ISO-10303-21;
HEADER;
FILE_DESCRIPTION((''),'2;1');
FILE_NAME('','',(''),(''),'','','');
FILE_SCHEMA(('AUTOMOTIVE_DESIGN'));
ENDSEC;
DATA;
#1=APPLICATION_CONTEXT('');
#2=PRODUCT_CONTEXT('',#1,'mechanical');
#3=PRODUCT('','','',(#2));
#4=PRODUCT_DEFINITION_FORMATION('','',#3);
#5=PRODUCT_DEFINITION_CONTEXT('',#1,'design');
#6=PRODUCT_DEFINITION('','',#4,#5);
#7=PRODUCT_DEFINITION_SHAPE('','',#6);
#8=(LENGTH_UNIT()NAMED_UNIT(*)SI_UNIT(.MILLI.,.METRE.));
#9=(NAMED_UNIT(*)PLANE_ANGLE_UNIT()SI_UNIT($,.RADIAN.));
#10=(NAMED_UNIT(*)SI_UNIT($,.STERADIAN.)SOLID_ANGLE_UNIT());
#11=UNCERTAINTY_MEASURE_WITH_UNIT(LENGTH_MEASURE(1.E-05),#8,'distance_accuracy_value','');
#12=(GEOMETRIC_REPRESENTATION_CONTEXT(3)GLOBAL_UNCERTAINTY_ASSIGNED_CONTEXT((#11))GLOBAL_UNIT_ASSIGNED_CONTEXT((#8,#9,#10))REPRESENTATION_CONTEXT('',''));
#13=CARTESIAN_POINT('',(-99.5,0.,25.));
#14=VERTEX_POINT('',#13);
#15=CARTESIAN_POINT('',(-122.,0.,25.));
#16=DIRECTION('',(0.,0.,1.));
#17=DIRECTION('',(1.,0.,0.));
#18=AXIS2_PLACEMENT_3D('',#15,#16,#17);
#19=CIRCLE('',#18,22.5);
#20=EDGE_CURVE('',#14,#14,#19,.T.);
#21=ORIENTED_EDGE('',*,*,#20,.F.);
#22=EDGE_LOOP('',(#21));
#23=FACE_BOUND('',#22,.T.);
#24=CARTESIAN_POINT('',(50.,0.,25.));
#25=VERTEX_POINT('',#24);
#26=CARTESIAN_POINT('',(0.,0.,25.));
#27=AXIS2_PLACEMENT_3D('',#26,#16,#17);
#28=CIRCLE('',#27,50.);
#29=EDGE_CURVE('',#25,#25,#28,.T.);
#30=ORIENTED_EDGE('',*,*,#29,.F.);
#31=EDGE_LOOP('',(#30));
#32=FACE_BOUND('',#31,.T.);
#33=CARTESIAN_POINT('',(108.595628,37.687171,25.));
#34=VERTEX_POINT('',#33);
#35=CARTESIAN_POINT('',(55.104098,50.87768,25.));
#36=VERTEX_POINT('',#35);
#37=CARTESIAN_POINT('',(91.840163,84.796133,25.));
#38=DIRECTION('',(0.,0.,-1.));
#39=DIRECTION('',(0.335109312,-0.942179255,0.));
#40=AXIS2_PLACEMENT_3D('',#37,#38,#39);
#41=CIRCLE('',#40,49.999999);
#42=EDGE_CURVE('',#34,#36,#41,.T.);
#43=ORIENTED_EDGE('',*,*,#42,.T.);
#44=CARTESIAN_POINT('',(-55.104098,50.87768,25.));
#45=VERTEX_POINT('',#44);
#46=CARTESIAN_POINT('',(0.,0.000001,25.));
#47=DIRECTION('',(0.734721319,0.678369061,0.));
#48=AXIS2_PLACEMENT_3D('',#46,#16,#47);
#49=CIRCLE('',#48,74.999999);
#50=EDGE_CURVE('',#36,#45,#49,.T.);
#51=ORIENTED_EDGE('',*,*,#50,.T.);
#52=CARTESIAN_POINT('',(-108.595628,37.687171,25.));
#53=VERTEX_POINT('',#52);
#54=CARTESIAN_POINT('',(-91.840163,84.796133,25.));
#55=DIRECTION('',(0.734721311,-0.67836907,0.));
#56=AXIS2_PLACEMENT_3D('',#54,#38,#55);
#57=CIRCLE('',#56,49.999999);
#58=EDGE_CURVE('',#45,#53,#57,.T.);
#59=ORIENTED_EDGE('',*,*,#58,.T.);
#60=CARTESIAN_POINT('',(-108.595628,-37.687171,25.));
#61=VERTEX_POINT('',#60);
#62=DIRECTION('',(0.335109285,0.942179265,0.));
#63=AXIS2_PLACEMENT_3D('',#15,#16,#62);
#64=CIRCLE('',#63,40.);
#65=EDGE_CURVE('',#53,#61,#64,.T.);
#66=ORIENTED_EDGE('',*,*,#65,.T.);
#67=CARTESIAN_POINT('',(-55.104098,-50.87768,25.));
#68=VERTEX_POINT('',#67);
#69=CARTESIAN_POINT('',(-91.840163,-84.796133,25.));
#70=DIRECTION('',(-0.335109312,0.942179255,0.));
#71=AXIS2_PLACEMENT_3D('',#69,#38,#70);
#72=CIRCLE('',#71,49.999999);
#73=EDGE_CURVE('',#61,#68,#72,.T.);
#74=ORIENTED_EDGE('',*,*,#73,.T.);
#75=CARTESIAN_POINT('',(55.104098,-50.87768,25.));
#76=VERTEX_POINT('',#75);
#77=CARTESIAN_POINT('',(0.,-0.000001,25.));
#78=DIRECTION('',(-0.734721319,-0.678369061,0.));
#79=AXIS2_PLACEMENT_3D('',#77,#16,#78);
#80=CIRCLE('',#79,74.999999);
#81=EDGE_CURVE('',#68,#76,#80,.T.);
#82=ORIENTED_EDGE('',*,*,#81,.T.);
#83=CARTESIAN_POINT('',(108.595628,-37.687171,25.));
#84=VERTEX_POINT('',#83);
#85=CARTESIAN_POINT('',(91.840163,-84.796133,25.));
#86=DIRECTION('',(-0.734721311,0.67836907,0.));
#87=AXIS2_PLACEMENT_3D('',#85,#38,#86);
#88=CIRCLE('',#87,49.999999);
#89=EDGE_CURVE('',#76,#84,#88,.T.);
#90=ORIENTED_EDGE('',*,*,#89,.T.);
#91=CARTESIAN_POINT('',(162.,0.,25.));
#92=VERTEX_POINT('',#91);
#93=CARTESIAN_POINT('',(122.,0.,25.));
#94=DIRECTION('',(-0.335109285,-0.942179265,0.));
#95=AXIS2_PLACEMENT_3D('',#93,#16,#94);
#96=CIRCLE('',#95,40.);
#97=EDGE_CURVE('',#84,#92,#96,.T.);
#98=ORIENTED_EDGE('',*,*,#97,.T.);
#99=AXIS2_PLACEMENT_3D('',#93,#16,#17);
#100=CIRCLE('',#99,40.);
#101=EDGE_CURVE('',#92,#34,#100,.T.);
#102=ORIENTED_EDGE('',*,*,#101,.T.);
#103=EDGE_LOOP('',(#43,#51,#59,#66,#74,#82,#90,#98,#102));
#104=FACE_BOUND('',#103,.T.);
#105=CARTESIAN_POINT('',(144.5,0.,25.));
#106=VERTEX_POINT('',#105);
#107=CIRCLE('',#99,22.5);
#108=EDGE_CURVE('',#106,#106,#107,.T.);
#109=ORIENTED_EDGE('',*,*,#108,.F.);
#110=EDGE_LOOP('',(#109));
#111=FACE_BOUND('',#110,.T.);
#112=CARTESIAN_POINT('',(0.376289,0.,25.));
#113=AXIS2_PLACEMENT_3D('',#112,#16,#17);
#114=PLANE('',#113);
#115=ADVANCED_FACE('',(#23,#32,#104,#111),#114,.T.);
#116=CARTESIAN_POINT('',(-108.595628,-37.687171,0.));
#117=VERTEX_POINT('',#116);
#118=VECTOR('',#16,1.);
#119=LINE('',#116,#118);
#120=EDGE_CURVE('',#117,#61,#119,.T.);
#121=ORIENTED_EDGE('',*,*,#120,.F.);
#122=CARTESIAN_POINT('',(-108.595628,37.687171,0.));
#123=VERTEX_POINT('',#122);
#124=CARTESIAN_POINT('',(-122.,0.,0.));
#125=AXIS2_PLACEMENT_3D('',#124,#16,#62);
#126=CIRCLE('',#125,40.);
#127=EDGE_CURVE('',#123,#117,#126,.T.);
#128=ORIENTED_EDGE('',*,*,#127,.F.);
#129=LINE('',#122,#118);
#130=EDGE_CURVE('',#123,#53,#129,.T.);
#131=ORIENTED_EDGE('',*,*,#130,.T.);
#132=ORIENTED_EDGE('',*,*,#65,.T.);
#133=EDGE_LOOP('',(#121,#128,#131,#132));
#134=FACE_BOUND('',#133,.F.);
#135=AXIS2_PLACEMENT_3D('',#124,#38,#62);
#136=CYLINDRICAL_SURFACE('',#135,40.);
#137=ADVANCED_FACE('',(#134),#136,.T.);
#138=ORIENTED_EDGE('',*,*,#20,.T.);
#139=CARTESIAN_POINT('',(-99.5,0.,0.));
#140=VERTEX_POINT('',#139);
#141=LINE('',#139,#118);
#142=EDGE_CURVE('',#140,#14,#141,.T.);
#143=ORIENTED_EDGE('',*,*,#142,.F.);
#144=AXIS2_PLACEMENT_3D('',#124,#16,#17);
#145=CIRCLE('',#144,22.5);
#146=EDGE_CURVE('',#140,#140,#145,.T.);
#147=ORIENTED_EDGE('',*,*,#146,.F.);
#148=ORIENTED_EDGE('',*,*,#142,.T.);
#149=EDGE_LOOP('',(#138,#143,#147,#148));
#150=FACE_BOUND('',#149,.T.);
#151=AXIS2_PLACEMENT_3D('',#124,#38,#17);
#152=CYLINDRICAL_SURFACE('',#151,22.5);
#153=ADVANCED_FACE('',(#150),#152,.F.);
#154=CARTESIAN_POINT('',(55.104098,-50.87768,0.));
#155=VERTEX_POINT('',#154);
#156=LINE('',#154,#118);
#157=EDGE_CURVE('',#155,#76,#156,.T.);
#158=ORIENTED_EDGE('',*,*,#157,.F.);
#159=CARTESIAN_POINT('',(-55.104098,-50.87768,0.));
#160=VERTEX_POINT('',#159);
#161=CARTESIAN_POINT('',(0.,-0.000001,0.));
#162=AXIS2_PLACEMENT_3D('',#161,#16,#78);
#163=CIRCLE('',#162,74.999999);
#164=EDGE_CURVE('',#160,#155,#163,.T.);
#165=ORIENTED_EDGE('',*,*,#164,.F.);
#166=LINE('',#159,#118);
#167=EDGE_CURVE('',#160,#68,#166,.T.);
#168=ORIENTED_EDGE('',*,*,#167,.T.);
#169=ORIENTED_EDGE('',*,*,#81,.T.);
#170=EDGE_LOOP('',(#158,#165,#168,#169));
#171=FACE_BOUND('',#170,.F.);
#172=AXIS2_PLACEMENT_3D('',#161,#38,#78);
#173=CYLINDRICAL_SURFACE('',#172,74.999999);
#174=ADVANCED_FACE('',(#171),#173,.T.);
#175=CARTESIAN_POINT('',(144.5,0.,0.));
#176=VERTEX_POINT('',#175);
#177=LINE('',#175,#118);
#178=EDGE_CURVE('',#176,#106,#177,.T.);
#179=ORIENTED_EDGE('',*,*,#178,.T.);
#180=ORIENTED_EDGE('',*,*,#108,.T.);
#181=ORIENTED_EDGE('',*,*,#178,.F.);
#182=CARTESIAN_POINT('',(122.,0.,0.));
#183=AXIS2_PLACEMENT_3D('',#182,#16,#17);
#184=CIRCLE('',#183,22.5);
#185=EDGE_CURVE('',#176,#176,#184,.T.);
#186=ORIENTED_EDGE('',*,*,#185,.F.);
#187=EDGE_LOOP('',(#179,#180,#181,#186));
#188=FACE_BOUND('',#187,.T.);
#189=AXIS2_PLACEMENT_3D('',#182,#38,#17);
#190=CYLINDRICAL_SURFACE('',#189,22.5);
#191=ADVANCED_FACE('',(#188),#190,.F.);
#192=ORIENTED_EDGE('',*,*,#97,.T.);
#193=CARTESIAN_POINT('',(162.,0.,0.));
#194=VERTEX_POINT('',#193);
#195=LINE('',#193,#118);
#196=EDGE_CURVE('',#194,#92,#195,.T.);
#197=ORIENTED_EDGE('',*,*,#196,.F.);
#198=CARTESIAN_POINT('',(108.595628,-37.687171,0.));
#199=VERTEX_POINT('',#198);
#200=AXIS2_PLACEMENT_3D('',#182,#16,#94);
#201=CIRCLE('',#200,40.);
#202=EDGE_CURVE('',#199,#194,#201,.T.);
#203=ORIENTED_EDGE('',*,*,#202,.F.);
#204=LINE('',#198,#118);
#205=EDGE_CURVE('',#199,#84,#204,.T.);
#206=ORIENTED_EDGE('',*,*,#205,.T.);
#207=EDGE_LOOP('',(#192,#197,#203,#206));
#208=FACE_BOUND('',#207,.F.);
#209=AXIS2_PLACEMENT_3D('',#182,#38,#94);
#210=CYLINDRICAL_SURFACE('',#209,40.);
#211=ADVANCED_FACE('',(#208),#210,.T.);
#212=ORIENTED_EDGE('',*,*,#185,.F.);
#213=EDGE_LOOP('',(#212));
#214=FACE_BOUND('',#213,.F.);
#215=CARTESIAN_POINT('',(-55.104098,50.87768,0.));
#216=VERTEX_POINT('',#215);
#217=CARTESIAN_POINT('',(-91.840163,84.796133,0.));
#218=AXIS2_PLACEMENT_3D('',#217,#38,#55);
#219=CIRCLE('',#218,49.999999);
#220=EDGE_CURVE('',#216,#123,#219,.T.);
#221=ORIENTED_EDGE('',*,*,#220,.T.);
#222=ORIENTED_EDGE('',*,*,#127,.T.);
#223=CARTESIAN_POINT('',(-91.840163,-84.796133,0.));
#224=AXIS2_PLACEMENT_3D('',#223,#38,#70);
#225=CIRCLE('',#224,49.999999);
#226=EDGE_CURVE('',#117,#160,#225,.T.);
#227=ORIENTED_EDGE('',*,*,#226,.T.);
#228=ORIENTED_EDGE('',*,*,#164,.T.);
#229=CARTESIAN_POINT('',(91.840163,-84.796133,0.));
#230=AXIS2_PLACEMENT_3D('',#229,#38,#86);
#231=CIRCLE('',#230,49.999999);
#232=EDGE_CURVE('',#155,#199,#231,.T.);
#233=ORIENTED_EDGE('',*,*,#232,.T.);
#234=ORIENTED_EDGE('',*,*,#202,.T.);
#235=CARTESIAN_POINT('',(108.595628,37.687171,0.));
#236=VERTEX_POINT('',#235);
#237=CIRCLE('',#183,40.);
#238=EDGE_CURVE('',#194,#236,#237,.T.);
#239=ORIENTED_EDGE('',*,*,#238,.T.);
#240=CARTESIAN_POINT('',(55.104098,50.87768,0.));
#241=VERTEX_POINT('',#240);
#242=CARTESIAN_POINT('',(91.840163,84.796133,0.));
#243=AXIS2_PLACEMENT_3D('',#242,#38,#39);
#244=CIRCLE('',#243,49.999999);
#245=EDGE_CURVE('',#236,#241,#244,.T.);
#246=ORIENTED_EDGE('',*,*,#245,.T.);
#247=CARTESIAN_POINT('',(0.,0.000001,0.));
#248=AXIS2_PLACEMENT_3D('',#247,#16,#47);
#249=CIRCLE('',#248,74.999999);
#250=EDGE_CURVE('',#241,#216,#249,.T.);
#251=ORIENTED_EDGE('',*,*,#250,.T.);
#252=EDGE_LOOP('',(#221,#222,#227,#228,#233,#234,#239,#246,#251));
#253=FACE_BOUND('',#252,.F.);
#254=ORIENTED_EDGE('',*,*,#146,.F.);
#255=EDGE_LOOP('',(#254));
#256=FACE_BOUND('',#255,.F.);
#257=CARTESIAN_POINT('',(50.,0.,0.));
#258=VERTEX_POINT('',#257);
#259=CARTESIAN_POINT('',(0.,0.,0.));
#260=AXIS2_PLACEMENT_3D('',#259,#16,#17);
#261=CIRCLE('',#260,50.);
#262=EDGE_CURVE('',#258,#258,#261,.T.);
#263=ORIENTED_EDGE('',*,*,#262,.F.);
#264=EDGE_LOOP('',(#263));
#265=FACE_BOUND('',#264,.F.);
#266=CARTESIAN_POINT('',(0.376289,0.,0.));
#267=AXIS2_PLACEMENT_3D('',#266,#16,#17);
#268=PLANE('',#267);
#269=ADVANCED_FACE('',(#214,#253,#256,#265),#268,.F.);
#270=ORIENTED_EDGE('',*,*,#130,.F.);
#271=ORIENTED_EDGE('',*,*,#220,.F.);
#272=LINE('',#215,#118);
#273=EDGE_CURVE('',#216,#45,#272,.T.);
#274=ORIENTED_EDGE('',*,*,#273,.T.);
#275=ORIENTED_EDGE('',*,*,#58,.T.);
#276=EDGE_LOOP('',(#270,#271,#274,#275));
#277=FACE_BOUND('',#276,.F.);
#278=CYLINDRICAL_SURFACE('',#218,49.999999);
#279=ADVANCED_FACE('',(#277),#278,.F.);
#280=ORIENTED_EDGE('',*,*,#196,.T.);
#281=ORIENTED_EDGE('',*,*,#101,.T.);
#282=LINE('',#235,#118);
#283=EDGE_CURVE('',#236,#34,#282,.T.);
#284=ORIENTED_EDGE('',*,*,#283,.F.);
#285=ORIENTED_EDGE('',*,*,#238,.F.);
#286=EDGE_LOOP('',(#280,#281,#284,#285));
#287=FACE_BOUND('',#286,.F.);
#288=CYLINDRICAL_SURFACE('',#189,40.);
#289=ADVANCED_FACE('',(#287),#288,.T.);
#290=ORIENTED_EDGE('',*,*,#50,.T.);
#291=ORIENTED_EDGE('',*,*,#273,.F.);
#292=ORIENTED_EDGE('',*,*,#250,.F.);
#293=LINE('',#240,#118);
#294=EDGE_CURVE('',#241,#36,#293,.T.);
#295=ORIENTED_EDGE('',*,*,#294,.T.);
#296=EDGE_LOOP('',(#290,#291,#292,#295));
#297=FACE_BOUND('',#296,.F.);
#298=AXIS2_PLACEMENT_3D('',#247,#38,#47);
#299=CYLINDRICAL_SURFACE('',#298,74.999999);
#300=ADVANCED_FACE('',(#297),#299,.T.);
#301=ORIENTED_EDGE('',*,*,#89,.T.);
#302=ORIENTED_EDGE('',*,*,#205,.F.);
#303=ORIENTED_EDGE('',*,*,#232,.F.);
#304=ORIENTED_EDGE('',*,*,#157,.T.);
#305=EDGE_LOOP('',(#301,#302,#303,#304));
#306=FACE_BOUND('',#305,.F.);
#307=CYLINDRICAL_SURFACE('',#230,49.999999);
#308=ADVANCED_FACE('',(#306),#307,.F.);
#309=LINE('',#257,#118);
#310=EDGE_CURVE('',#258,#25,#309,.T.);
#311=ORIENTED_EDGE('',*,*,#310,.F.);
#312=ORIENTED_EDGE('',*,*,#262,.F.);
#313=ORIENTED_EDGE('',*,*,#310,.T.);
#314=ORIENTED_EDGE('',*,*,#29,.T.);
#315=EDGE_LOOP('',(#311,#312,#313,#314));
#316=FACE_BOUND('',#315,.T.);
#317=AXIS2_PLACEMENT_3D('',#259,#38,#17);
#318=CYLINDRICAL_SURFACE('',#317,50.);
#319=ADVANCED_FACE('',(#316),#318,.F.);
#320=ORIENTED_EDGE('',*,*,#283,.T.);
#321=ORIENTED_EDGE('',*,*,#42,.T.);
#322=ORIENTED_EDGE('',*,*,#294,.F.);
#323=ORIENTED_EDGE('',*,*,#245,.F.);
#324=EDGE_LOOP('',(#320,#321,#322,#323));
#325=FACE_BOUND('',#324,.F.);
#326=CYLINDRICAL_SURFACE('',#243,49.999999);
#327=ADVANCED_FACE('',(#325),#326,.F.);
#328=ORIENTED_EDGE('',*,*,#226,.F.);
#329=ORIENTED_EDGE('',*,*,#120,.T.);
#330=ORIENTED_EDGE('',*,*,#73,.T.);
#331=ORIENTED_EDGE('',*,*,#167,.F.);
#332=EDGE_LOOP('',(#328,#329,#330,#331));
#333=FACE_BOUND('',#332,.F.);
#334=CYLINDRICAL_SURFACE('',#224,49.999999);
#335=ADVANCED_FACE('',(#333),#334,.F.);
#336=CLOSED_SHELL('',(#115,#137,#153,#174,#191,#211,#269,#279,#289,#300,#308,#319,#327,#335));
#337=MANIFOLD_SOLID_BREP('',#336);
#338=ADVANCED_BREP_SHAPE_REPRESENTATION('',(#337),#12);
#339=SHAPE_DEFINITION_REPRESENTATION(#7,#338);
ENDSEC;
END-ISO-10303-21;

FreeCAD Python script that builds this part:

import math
import FreeCAD as App
import Part
import Sketcher

V = App.Vector

doc = App.newDocument("Part")
body = doc.addObject("PartDesign::Body", "Body")

sketch1 = body.newObject("Sketcher::SketchObject", "Sketch")
sketch1.AttachmentSupport = (doc.getObject("XY_Plane"), [""])
sketch1.MapMode = "FlatFace"
sketch1.addGeometry([
    Part.ArcOfCircle(Part.Circle(V(0, 0, 0), V(0, 0, 1), 75), math.radians(-137), math.radians(-43)),
    Part.ArcOfCircle(Part.Circle(V(92, -85, 0), V(0, 0, 1), 50), math.radians(70), math.radians(137)),
    Part.ArcOfCircle(Part.Circle(V(122, 0, 0), V(0, 0, 1), 40), math.radians(-110), math.radians(0)),
    Part.ArcOfCircle(Part.Circle(V(122, 0, 0), V(0, 0, 1), 40), math.radians(0), math.radians(110)),
    Part.ArcOfCircle(Part.Circle(V(92, 85, 0), V(0, 0, 1), 50), math.radians(-137), math.radians(-70)),
    Part.ArcOfCircle(Part.Circle(V(0, 0, 0), V(0, 0, 1), 75), math.radians(43), math.radians(137)),
    Part.ArcOfCircle(Part.Circle(V(-92, 85, 0), V(0, 0, 1), 50), math.radians(-110), math.radians(-43)),
    Part.ArcOfCircle(Part.Circle(V(-122, 0, 0), V(0, 0, 1), 40), math.radians(70), math.radians(290)),
    Part.ArcOfCircle(Part.Circle(V(-92, -85, 0), V(0, 0, 1), 50), math.radians(43), math.radians(110)),
    Part.Circle(V(-122, 0, 0), V(0, 0, 1), 22),
    Part.Circle(V(0, 0, 0), V(0, 0, 1), 50),
    Part.Circle(V(122, 0, 0), V(0, 0, 1), 22),
], False)
sketch1.addConstraint([
    Sketcher.Constraint("Tangent", 0, 2, 1, 2),
    Sketcher.Constraint("Tangent", 1, 1, 2, 1),
    Sketcher.Constraint("Tangent", 2, 2, 3, 1),
    Sketcher.Constraint("Tangent", 3, 2, 4, 2),
    Sketcher.Constraint("Tangent", 4, 1, 5, 1),
    Sketcher.Constraint("Tangent", 5, 2, 6, 2),
    Sketcher.Constraint("Tangent", 6, 1, 7, 1),
    Sketcher.Constraint("Tangent", 7, 2, 8, 2),
    Sketcher.Constraint("Tangent", 8, 1, 0, 1),
    Sketcher.Constraint("Coincident", 0, 3, -1, 1),
    Sketcher.Constraint("Coincident", 5, 3, -1, 1),
    Sketcher.Constraint("Coincident", 10, 3, -1, 1),
    Sketcher.Constraint("Coincident", 9, 3, 7, 3),
    Sketcher.Constraint("Coincident", 11, 3, 2, 3),
    Sketcher.Constraint("Equal", 2, 3),
    Sketcher.Constraint("Equal", 1, 4),
    Sketcher.Constraint("Equal", 0, 5),
    Sketcher.Constraint("Equal", 4, 6),
    Sketcher.Constraint("Equal", 3, 7),
    Sketcher.Constraint("Equal", 6, 8),
    Sketcher.Constraint("Equal", 8, 10),
    Sketcher.Constraint("Equal", 9, 11),
    Sketcher.Constraint("Symmetric", 2, 3, 7, 3, -1, 1),
    Sketcher.Constraint("PointOnObject", 2, 3, -1),
    Sketcher.Constraint("PointOnObject", 2, 2, -1),
    Sketcher.Constraint("Diameter", 9, 45.0),
    Sketcher.Constraint("Diameter", 10, 100.0),
    Sketcher.Constraint("Radius", 0, 74.999999),
    Sketcher.Constraint("Radius", 2, 40.0),
    Sketcher.Constraint("DistanceX", -1, 1, 2, 3, 122.0),
])
pad1 = body.newObject("PartDesign::Pad", "Pad")
pad1.Profile = sketch1
pad1.Length = 25

doc.recompute()
